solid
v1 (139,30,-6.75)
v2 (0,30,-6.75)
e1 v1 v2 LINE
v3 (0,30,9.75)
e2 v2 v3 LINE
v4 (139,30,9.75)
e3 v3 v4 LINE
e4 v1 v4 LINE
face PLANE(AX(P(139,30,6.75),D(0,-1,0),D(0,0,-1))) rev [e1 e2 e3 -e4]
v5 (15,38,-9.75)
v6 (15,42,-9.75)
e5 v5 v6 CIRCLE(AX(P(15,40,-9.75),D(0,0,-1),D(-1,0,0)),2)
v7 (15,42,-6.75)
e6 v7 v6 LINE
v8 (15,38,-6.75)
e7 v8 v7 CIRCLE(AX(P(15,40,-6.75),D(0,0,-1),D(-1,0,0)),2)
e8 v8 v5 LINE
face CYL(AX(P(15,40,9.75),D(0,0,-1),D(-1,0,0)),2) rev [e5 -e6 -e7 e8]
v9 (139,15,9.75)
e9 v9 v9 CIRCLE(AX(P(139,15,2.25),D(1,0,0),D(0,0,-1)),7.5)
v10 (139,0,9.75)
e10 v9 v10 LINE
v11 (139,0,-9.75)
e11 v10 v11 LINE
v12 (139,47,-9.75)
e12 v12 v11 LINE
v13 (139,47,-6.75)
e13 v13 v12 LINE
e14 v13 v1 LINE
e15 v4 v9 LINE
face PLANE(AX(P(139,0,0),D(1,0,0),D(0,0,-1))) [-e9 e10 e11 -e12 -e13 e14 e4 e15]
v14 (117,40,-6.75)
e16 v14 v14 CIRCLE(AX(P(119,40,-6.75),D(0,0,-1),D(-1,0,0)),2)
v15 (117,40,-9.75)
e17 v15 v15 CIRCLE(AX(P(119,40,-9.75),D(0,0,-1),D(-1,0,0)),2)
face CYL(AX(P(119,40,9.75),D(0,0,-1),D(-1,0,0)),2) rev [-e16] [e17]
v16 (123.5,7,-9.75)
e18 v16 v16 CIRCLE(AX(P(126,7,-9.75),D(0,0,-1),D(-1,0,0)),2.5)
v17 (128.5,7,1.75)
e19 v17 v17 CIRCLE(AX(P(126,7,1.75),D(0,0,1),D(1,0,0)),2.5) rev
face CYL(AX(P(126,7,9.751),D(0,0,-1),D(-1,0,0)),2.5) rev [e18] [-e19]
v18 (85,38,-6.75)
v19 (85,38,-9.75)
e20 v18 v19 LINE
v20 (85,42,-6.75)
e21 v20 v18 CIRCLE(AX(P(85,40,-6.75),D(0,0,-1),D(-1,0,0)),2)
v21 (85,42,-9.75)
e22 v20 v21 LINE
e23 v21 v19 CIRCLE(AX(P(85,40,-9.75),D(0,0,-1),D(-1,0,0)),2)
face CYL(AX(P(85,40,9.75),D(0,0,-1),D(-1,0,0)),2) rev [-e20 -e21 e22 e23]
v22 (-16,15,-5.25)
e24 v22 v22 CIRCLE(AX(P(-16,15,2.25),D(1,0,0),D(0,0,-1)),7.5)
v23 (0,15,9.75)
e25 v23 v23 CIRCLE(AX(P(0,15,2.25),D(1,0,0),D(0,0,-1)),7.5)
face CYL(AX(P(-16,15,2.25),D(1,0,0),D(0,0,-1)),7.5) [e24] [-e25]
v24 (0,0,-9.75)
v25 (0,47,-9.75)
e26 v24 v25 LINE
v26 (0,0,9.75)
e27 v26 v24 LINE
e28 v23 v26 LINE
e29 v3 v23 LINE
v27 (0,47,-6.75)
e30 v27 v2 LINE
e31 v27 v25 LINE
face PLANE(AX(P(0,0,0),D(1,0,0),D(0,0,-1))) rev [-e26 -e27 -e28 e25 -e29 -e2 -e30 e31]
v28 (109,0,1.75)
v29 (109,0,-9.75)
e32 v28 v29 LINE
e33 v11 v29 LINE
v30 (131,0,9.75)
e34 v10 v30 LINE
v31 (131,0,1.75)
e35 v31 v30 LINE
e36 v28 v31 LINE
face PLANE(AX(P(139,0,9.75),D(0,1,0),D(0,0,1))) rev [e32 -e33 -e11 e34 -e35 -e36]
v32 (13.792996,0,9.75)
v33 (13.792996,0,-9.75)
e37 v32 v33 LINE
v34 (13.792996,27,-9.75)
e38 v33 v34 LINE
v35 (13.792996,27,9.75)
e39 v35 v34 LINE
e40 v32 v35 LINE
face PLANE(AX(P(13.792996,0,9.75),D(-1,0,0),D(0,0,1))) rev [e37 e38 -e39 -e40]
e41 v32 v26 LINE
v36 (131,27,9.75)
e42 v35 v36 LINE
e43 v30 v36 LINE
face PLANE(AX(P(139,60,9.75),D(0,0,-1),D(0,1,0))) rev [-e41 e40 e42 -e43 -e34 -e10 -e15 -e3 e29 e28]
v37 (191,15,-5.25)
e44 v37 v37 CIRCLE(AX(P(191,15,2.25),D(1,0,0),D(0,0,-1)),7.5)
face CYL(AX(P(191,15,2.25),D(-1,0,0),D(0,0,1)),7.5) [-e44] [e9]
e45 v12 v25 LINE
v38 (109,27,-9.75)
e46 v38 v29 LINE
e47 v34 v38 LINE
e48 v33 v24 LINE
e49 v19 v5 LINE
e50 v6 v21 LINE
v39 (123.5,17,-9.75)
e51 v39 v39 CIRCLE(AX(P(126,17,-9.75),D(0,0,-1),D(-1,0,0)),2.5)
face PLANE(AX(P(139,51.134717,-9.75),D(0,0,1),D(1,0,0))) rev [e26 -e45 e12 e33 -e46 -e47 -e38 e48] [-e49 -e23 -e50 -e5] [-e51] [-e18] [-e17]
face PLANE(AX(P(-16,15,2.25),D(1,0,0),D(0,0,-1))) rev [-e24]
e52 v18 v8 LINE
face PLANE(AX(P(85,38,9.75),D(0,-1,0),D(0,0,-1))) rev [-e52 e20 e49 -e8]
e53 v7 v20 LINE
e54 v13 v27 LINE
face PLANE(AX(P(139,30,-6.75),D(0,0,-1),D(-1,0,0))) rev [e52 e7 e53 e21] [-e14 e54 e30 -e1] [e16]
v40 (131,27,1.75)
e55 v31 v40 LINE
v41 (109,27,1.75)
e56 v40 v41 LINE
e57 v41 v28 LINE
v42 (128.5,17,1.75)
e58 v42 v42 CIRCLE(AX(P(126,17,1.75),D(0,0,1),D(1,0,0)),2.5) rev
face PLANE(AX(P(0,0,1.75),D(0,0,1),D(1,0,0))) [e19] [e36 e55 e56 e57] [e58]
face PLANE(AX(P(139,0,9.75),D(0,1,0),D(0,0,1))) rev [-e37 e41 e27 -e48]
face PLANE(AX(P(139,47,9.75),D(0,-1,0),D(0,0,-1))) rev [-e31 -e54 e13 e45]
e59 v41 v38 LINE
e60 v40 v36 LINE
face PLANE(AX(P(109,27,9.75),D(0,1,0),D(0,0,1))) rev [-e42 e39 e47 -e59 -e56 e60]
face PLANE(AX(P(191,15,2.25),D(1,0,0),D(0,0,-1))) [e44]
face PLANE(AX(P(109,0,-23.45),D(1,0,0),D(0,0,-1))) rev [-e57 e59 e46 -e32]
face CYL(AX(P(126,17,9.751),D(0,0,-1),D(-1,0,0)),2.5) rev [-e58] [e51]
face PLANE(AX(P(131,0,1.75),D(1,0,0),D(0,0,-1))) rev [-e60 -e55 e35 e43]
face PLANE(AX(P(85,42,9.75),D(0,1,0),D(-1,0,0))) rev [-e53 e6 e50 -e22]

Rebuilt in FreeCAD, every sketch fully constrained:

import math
import FreeCAD as App
import Part
import Sketcher
from FreeCAD import Vector

doc = App.newDocument("Part")
body = doc.addObject("PartDesign::Body", "Body")

# Sketch on YZ plane
sketch1 = body.newObject("Sketcher::SketchObject", "Sketch")
sketch1.AttachmentSupport = (doc.getObject("YZ_Plane"), [""])
sketch1.MapMode = "FlatFace"
sketch1.addGeometry([
    Part.LineSegment(Vector(30, -6.8, 0), Vector(30, 6.8, 0)),  # 0
    Part.LineSegment(Vector(30, 6.8, 0), Vector(60, 6.8, 0)),  # 1
    Part.LineSegment(Vector(60, 6.8, 0), Vector(60, 9.8, 0)),  # 2
    Part.LineSegment(Vector(60, 9.8, 0), Vector(0, 9.8, 0)),  # 3
    Part.LineSegment(Vector(0, 9.8, 0), Vector(0, -9.8, 0)),  # 4
    Part.LineSegment(Vector(0, -9.8, 0), Vector(60, -9.8, 0)),  # 5
    Part.LineSegment(Vector(60, -9.8, 0), Vector(60, -6.8, 0)),  # 6
    Part.LineSegment(Vector(60, -6.8, 0), Vector(30, -6.8, 0)),  # 7
], False)
sketch1.addConstraint([
    Sketcher.Constraint("Coincident", 0, 2, 1, 1),
    Sketcher.Constraint("Coincident", 1, 2, 2, 1),
    Sketcher.Constraint("Coincident", 2, 2, 3, 1),
    Sketcher.Constraint("Coincident", 3, 2, 4, 1),
    Sketcher.Constraint("Coincident", 4, 2, 5, 1),
    Sketcher.Constraint("Coincident", 5, 2, 6, 1),
    Sketcher.Constraint("Coincident", 6, 2, 7, 1),
    Sketcher.Constraint("Coincident", 7, 2, 0, 1),
    Sketcher.Constraint("Vertical", 0),
    Sketcher.Constraint("Horizontal", 1),
    Sketcher.Constraint("Vertical", 2),
    Sketcher.Constraint("Horizontal", 3),
    Sketcher.Constraint("Vertical", 4),
    Sketcher.Constraint("Horizontal", 5),
    Sketcher.Constraint("Vertical", 6),
    Sketcher.Constraint("Horizontal", 7),
    Sketcher.Constraint("Symmetric", 3, 2, 4, 2, -1, 1),
    Sketcher.Constraint("Symmetric", 1, 2, 6, 2, -1),
    Sketcher.Constraint("DistanceX", 1, 1, 1, 2, 30.0),
    Sketcher.Constraint("DistanceX", 3, 2, 3, 1, 60.0),
    Sketcher.Constraint("DistanceY", 2, 1, 2, 2, 3.0),
    Sketcher.Constraint("DistanceY", 0, 1, 0, 2, 13.5),
])
pad1 = body.newObject("PartDesign::Pad", "Pad")
pad1.Profile = sketch1
pad1.Length = 139

# Sketch on XY plane
sketch2 = body.newObject("Sketcher::SketchObject", "Sketch001")
sketch2.AttachmentSupport = (doc.getObject("XY_Plane"), [""])
sketch2.MapMode = "FlatFace"
sketch2.AttachmentOffset = App.Placement(Vector(0, 0, -9.75), App.Rotation())
sketch2.addGeometry([
    Part.Circle(Vector(119, 40, 0), Vector(0, 0, 1), 2),  # 0
    Part.LineSegment(Vector(15, 42, 0), Vector(85, 42, 0)),  # 1
    Part.ArcOfCircle(Part.Circle(Vector(85, 40, 0), Vector(0, 0, 1), 2), math.radians(-90), math.radians(90)),  # 2
    Part.LineSegment(Vector(85, 38, 0), Vector(15, 38, 0)),  # 3
    Part.ArcOfCircle(Part.Circle(Vector(15, 40, 0), Vector(0, 0, 1), 2), math.radians(90), math.radians(270)),  # 4
], False)
sketch2.addConstraint([
    Sketcher.Constraint("Tangent", 1, 2, 2, 2),
    Sketcher.Constraint("Tangent", 2, 1, 3, 1),
    Sketcher.Constraint("Tangent", 3, 2, 4, 2),
    Sketcher.Constraint("Tangent", 4, 1, 1, 1),
    Sketcher.Constraint("Horizontal", 1),
    Sketcher.Constraint("Horizontal", 3),
    Sketcher.Constraint("Equal", 0, 2),
    Sketcher.Constraint("Horizontal", 0, 3, 2, 3),
    Sketcher.Constraint("Diameter", 0, 4.0),
    Sketcher.Constraint("DistanceX", 1, 1, 1, 2, 70.0),
    Sketcher.Constraint("DistanceX", -1, 1, 0, 3, 119.0),
    Sketcher.Constraint("DistanceY", -1, 1, 0, 3, 40.0),
    Sketcher.Constraint("DistanceX", -1, 1, 2, 3, 85.0),
])
pocket1 = body.newObject("PartDesign::Pocket", "Pocket")
pocket1.Profile = sketch2
pocket1.Type = "ThroughAll"
pocket1.Reversed = True

# Sketch on XY plane
sketch3 = body.newObject("Sketcher::SketchObject", "Sketch002")
sketch3.AttachmentSupport = (doc.getObject("XY_Plane"), [""])
sketch3.MapMode = "FlatFace"
sketch3.AttachmentOffset = App.Placement(Vector(0, 0, -9.75), App.Rotation())
sketch3.addGeometry([
    Part.LineSegment(Vector(139, 60, 0), Vector(139, 0, 0)),
    Part.LineSegment(Vector(139, 0, 0), Vector(109, 0, 0)),
    Part.LineSegment(Vector(109, 0, 0), Vector(109, 60, 0)),
    Part.LineSegment(Vector(109, 60, 0), Vector(139, 60, 0)),
], False)
sketch3.addConstraint([
    Sketcher.Constraint("Coincident", 0, 2, 1, 1),
    Sketcher.Constraint("Coincident", 1, 2, 2, 1),
    Sketcher.Constraint("Coincident", 2, 2, 3, 1),
    Sketcher.Constraint("Coincident", 3, 2, 0, 1),
    Sketcher.Constraint("Vertical", 0),
    Sketcher.Constraint("Horizontal", 1),
    Sketcher.Constraint("Vertical", 2),
    Sketcher.Constraint("Horizontal", 3),
    Sketcher.Constraint("PointOnObject", 0, 2, -1),
    Sketcher.Constraint("DistanceX", 1, 2, 1, 1, 30.0),
    Sketcher.Constraint("DistanceY", 0, 2, 0, 1, 60.0),
    Sketcher.Constraint("DistanceX", -1, 1, 0, 2, 139.0),
])
pad2 = body.newObject("PartDesign::Pad", "Pad001")
pad2.Profile = sketch3
pad2.Length = 13.7
pad2.Reversed = True

# Sketch on XY plane
sketch4 = body.newObject("Sketcher::SketchObject", "Sketch003")
sketch4.AttachmentSupport = (doc.getObject("XY_Plane"), [""])
sketch4.MapMode = "FlatFace"
sketch4.AttachmentOffset = App.Placement(Vector(0, 0, -23.45), App.Rotation())
sketch4.addGeometry([
    Part.LineSegment(Vector(139, 23.1, 0), Vector(139, 18.9, 0)),  # 0
    Part.LineSegment(Vector(139, 18.9, 0), Vector(111.4, 18.9, 0)),  # 1
    Part.LineSegment(Vector(111.4, 18.9, 0), Vector(111.4, 23.1, 0)),  # 2
    Part.LineSegment(Vector(111.4, 23.1, 0), Vector(139, 23.1, 0)),  # 3
    Part.LineSegment(Vector(139, 50.9, 0), Vector(139, 46.6, 0)),  # 4
    Part.LineSegment(Vector(139, 46.6, 0), Vector(111.6, 46.6, 0)),  # 5
    Part.LineSegment(Vector(111.6, 46.6, 0), Vector(111.6, 50.9, 0)),  # 6
    Part.LineSegment(Vector(111.6, 50.9, 0), Vector(139, 50.9, 0)),  # 7
], False)
sketch4.addConstraint([
    Sketcher.Constraint("Coincident", 0, 2, 1, 1),
    Sketcher.Constraint("Coincident", 1, 2, 2, 1),
    Sketcher.Constraint("Coincident", 2, 2, 3, 1),
    Sketcher.Constraint("Coincident", 3, 2, 0, 1),
    Sketcher.Constraint("Coincident", 4, 2, 5, 1),
    Sketcher.Constraint("Coincident", 5, 2, 6, 1),
    Sketcher.Constraint("Coincident", 6, 2, 7, 1),
    Sketcher.Constraint("Coincident", 7, 2, 4, 1),
    Sketcher.Constraint("Vertical", 0),
    Sketcher.Constraint("Horizontal", 1),
    Sketcher.Constraint("Vertical", 2),
    Sketcher.Constraint("Horizontal", 3),
    Sketcher.Constraint("Vertical", 4),
    Sketcher.Constraint("Horizontal", 5),
    Sketcher.Constraint("Vertical", 6),
    Sketcher.Constraint("Horizontal", 7),
    Sketcher.Constraint("Vertical", 3, 2, 4, 2),
    Sketcher.Constraint("Equal", 2, 4),
    Sketcher.Constraint("DistanceX", -1, 1, 0, 2, 139.0),
    Sketcher.Constraint("DistanceY", 0, 2, 0, 1, 4.25),
    Sketcher.Constraint("DistanceY", -1, 1, 2, 2, 23.1),
    Sketcher.Constraint("DistanceY", -1, 1, 6, 2, 50.9),
    Sketcher.Constraint("DistanceX", 2, 2, 5, 2, 0.2),
    Sketcher.Constraint("DistanceX", 1, 2, 1, 1, 27.582278),
])
pad3 = body.newObject("PartDesign::Pad", "Pad002")
pad3.Profile = sketch4
pad3.Length = 10
pad3.Reversed = True

# Sketch on YZ plane
sketch5 = body.newObject("Sketcher::SketchObject", "Sketch004")
sketch5.AttachmentSupport = (doc.getObject("YZ_Plane"), [""])
sketch5.MapMode = "FlatFace"
sketch5.AttachmentOffset = App.Placement(Vector(0, 0, 111.617722), App.Rotation())
sketch5.addGeometry([
    Part.Circle(Vector(48.8, -30.9, 0), Vector(0, 0, 1), 1),
    Part.Circle(Vector(21, -30.9, 0), Vector(0, 0, 1), 1),
], False)
sketch5.addConstraint([
    Sketcher.Constraint("Equal", 0, 1),
    Sketcher.Constraint("Horizontal", 0, 3, 1, 3),
    Sketcher.Constraint("Diameter", 0, 2.0),
    Sketcher.Constraint("DistanceX", -1, 1, 0, 3, 48.78),
    Sketcher.Constraint("DistanceY", 0, 3, -1, 1, 30.95),
    Sketcher.Constraint("DistanceX", -1, 1, 1, 3, 20.97),
])
pocket2 = body.newObject("PartDesign::Pocket", "Pocket001")
pocket2.Profile = sketch5
pocket2.Type = "ThroughAll"
pocket2.Midplane = True

# Sketch on YZ plane
sketch6 = body.newObject("Sketcher::SketchObject", "Sketch005")
sketch6.AttachmentSupport = (doc.getObject("YZ_Plane"), [""])
sketch6.MapMode = "FlatFace"
sketch6.AttachmentOffset = App.Placement(Vector(0, 0, 139), App.Rotation())
sketch6.addGeometry(Part.Circle(Vector(15, 2, 0), Vector(0, 0, 1), 8), False)
sketch6.addConstraint([
    Sketcher.Constraint("Diameter", 0, 15.0),
    Sketcher.Constraint("DistanceX", -1, 1, 0, 3, 15.0),
    Sketcher.Constraint("DistanceY", -1, 1, 0, 3, 2.25),
])
pad4 = body.newObject("PartDesign::Pad", "Pad003")
pad4.Profile = sketch6
pad4.Length = 52

# Sketch on YZ plane
sketch7 = body.newObject("Sketcher::SketchObject", "Sketch006")
sketch7.AttachmentSupport = (doc.getObject("YZ_Plane"), [""])
sketch7.MapMode = "FlatFace"
sketch7.AttachmentOffset = App.Placement(Vector(0, 0, -16), App.Rotation())
sketch7.addGeometry(Part.Circle(Vector(15, 2, 0), Vector(0, 0, 1), 8), False)
sketch7.addConstraint([
    Sketcher.Constraint("Diameter", 0, 15.0),
    Sketcher.Constraint("DistanceX", -1, 1, 0, 3, 15.0),
    Sketcher.Constraint("DistanceY", -1, 1, 0, 3, 2.25),
])
pad5 = body.newObject("PartDesign::Pad", "Pad004")
pad5.Profile = sketch7
pad5.Length = 155

# Sketch on XZ plane
sketch8 = body.newObject("Sketcher::SketchObject", "Sketch007")
sketch8.AttachmentSupport = (doc.getObject("XZ_Plane"), [""])
sketch8.MapMode = "FlatFace"
sketch8.addGeometry([
    Part.LineSegment(Vector(109, -10, 0), Vector(109, -23, 0)),
    Part.LineSegment(Vector(109, -23, 0), Vector(139, -23, 0)),
    Part.LineSegment(Vector(139, -23, 0), Vector(139, -10, 0)),
    Part.LineSegment(Vector(139, -10, 0), Vector(109, -10, 0)),
], False)
sketch8.addConstraint([
    Sketcher.Constraint("Coincident", 0, 2, 1, 1),
    Sketcher.Constraint("Coincident", 1, 2, 2, 1),
    Sketcher.Constraint("Coincident", 2, 2, 3, 1),
    Sketcher.Constraint("Coincident", 3, 2, 0, 1),
    Sketcher.Constraint("Vertical", 0),
    Sketcher.Constraint("Horizontal", 1),
    Sketcher.Constraint("Vertical", 2),
    Sketcher.Constraint("Horizontal", 3),
    Sketcher.Constraint("DistanceX", 1, 1, 1, 2, 30.0),
    Sketcher.Constraint("DistanceY", 0, 2, 0, 1, 13.7),
    Sketcher.Constraint("DistanceX", -1, 1, 0, 2, 109.0),
    Sketcher.Constraint("DistanceY", 0, 2, -1, 1, 23.45),
])
pocket3 = body.newObject("PartDesign::Pocket", "Pocket002")
pocket3.Profile = sketch8
pocket3.Length = 18.85

# Sketch on XY plane
sketch9 = body.newObject("Sketcher::SketchObject", "Sketch008")
sketch9.AttachmentSupport = (doc.getObject("XY_Plane"), [""])
sketch9.MapMode = "FlatFace"
sketch9.AttachmentOffset = App.Placement(Vector(0, 0, -9.75), App.Rotation())
sketch9.addGeometry([
    Part.LineSegment(Vector(109, 27, 0), Vector(109, 0, 0)),
    Part.LineSegment(Vector(109, 0, 0), Vector(14, 0, 0)),
    Part.LineSegment(Vector(14, 0, 0), Vector(14, 27, 0)),
    Part.LineSegment(Vector(14, 27, 0), Vector(109, 27, 0)),
], False)
sketch9.addConstraint([
    Sketcher.Constraint("Coincident", 0, 2, 1, 1),
    Sketcher.Constraint("Coincident", 1, 2, 2, 1),
    Sketcher.Constraint("Coincident", 2, 2, 3, 1),
    Sketcher.Constraint("Coincident", 3, 2, 0, 1),
    Sketcher.Constraint("Vertical", 0),
    Sketcher.Constraint("Horizontal", 1),
    Sketcher.Constraint("Vertical", 2),
    Sketcher.Constraint("Horizontal", 3),
    Sketcher.Constraint("PointOnObject", 0, 2, -1),
    Sketcher.Constraint("DistanceY", 0, 2, 0, 1, 27.0),
    Sketcher.Constraint("DistanceX", -1, 1, 0, 2, 109.0),
    Sketcher.Constraint("DistanceX", 1, 2, 1, 1, 95.207004),
])
pocket4 = body.newObject("PartDesign::Pocket", "Pocket003")
pocket4.Profile = sketch9
pocket4.Type = "ThroughAll"
pocket4.Reversed = True

# Sketch on XY plane
sketch10 = body.newObject("Sketcher::SketchObject", "Sketch009")
sketch10.AttachmentSupport = (doc.getObject("XY_Plane"), [""])
sketch10.MapMode = "FlatFace"
sketch10.AttachmentOffset = App.Placement(Vector(0, 0, 9.75), App.Rotation())
sketch10.addGeometry([
    Part.LineSegment(Vector(0, 60, 0), Vector(0, 30, 0)),
    Part.LineSegment(Vector(0, 30, 0), Vector(139, 30, 0)),
    Part.LineSegment(Vector(139, 30, 0), Vector(139, 60, 0)),
    Part.LineSegment(Vector(139, 60, 0), Vector(0, 60, 0)),
], False)
sketch10.addConstraint([
    Sketcher.Constraint("Coincident", 0, 2, 1, 1),
    Sketcher.Constraint("Coincident", 1, 2, 2, 1),
    Sketcher.Constraint("Coincident", 2, 2, 3, 1),
    Sketcher.Constraint("Coincident", 3, 2, 0, 1),
    Sketcher.Constraint("Vertical", 0),
    Sketcher.Constraint("Horizontal", 1),
    Sketcher.Constraint("Vertical", 2),
    Sketcher.Constraint("Horizontal", 3),
    Sketcher.Constraint("PointOnObject", 0, 2, -2),
    Sketcher.Constraint("DistanceX", 1, 1, 1, 2, 139.0),
    Sketcher.Constraint("DistanceY", 0, 2, 0, 1, 30.0),
    Sketcher.Constraint("DistanceY", -1, 1, 0, 2, 30.0),
])
pocket5 = body.newObject("PartDesign::Pocket", "Pocket004")
pocket5.Profile = sketch10
pocket5.Length = 16.5

# Sketch on XY plane
sketch11 = body.newObject("Sketcher::SketchObject", "Sketch010")
sketch11.AttachmentSupport = (doc.getObject("XY_Plane"), [""])
sketch11.MapMode = "FlatFace"
sketch11.AttachmentOffset = App.Placement(Vector(0, 0, -23.45), App.Rotation())
sketch11.addGeometry([
    Part.LineSegment(Vector(139, 60, 0), Vector(139, 15, 0)),
    Part.LineSegment(Vector(139, 15, 0), Vector(109, 15, 0)),
    Part.LineSegment(Vector(109, 15, 0), Vector(109, 60, 0)),
    Part.LineSegment(Vector(109, 60, 0), Vector(139, 60, 0)),
], False)
sketch11.addConstraint([
    Sketcher.Constraint("Coincident", 0, 2, 1, 1),
    Sketcher.Constraint("Coincident", 1, 2, 2, 1),
    Sketcher.Constraint("Coincident", 2, 2, 3, 1),
    Sketcher.Constraint("Coincident", 3, 2, 0, 1),
    Sketcher.Constraint("Vertical", 0),
    Sketcher.Constraint("Horizontal", 1),
    Sketcher.Constraint("Vertical", 2),
    Sketcher.Constraint("Horizontal", 3),
    Sketcher.Constraint("DistanceX", 1, 2, 1, 1, 30.0),
    Sketcher.Constraint("DistanceX", -1, 1, 0, 2, 139.0),
    Sketcher.Constraint("DistanceY", -1, 1, 2, 2, 60.0),
    Sketcher.Constraint("DistanceY", 0, 2, 0, 1, 45.211644),
])
pocket6 = body.newObject("PartDesign::Pocket", "Pocket005")
pocket6.Profile = sketch11
pocket6.Type = "TwoLengths"
pocket6.Length = 203.936542
pocket6.Length2 = 13.7

# Sketch on XY plane
sketch12 = body.newObject("Sketcher::SketchObject", "Sketch011")
sketch12.AttachmentSupport = (doc.getObject("XY_Plane"), [""])
sketch12.MapMode = "FlatFace"
sketch12.AttachmentOffset = App.Placement(Vector(0, 0, -9.75), App.Rotation())
sketch12.addGeometry([
    Part.LineSegment(Vector(139, 60, 0), Vector(139, 47, 0)),
    Part.LineSegment(Vector(139, 47, 0), Vector(0, 47, 0)),
    Part.LineSegment(Vector(0, 47, 0), Vector(0, 60, 0)),
    Part.LineSegment(Vector(0, 60, 0), Vector(139, 60, 0)),
], False)
sketch12.addConstraint([
    Sketcher.Constraint("Coincident", 0, 2, 1, 1),
    Sketcher.Constraint("Coincident", 1, 2, 2, 1),
    Sketcher.Constraint("Coincident", 2, 2, 3, 1),
    Sketcher.Constraint("Coincident", 3, 2, 0, 1),
    Sketcher.Constraint("Vertical", 0),
    Sketcher.Constraint("Horizontal", 1),
    Sketcher.Constraint("Vertical", 2),
    Sketcher.Constraint("Horizontal", 3),
    Sketcher.Constraint("PointOnObject", 1, 2, -2),
    Sketcher.Constraint("DistanceX", 1, 2, 1, 1, 139.0),
    Sketcher.Constraint("DistanceY", 0, 2, 0, 1, 13.0),
    Sketcher.Constraint("DistanceY", -1, 1, 0, 2, 47.0),
])
pocket7 = body.newObject("PartDesign::Pocket", "Pocket006")
pocket7.Profile = sketch12
pocket7.Type = "ThroughAll"
pocket7.Reversed = True

# Sketch on XY plane
sketch13 = body.newObject("Sketcher::SketchObject", "Sketch012")
sketch13.AttachmentSupport = (doc.getObject("XY_Plane"), [""])
sketch13.MapMode = "FlatFace"
sketch13.AttachmentOffset = App.Placement(Vector(0, 0, -9.75), App.Rotation())
sketch13.addGeometry(Part.Circle(Vector(126, 7, 0), Vector(0, 0, 1), 2.5), False)
sketch13.addConstraint([
    Sketcher.Constraint("Diameter", 0, 5.0),
    Sketcher.Constraint("DistanceX", -1, 1, 0, 3, 126.0),
    Sketcher.Constraint("DistanceY", -1, 1, 0, 3, 7.0),
])
pocket8 = body.newObject("PartDesign::Pocket", "Pocket007")
pocket8.Profile = sketch13
pocket8.Type = "UpToFirst"
pocket8.Reversed = True

# Sketch on XY plane
sketch14 = body.newObject("Sketcher::SketchObject", "Sketch013")
sketch14.AttachmentSupport = (doc.getObject("XY_Plane"), [""])
sketch14.MapMode = "FlatFace"
sketch14.AttachmentOffset = App.Placement(Vector(0, 0, -9.75), App.Rotation())
sketch14.addGeometry(Part.Circle(Vector(126, 17, 0), Vector(0, 0, 1), 2.5), False)
sketch14.addConstraint([
    Sketcher.Constraint("Diameter", 0, 5.0),
    Sketcher.Constraint("DistanceX", -1, 1, 0, 3, 126.0),
    Sketcher.Constraint("DistanceY", -1, 1, 0, 3, 17.0),
])
pocket9 = body.newObject("PartDesign::Pocket", "Pocket008")
pocket9.Profile = sketch14
pocket9.Type = "UpToFirst"
pocket9.Reversed = True

# Sketch on XY plane
sketch15 = body.newObject("Sketcher::SketchObject", "Sketch014")
sketch15.AttachmentSupport = (doc.getObject("XY_Plane"), [""])
sketch15.MapMode = "FlatFace"
sketch15.AttachmentOffset = App.Placement(Vector(0, 0, 9.75), App.Rotation())
sketch15.addGeometry([
    Part.LineSegment(Vector(109, 27, 0), Vector(109, 0, 0)),
    Part.LineSegment(Vector(109, 0, 0), Vector(131, 0, 0)),
    Part.LineSegment(Vector(131, 0, 0), Vector(131, 27, 0)),
    Part.LineSegment(Vector(131, 27, 0), Vector(109, 27, 0)),
], False)
sketch15.addConstraint([
    Sketcher.Constraint("Coincident", 0, 2, 1, 1),
    Sketcher.Constraint("Coincident", 1, 2, 2, 1),
    Sketcher.Constraint("Coincident", 2, 2, 3, 1),
    Sketcher.Constraint("Coincident", 3, 2, 0, 1),
    Sketcher.Constraint("Vertical", 0),
    Sketcher.Constraint("Horizontal", 1),
    Sketcher.Constraint("Vertical", 2),
    Sketcher.Constraint("Horizontal", 3),
    Sketcher.Constraint("PointOnObject", 0, 2, -1),
    Sketcher.Constraint("DistanceX", 1, 1, 1, 2, 22.0),
    Sketcher.Constraint("DistanceY", 0, 2, 0, 1, 27.0),
    Sketcher.Constraint("DistanceX", -1, 1, 0, 2, 109.0),
])
pocket10 = body.newObject("PartDesign::Pocket", "Pocket009")
pocket10.Profile = sketch15
pocket10.Length = 8

doc.recompute()
